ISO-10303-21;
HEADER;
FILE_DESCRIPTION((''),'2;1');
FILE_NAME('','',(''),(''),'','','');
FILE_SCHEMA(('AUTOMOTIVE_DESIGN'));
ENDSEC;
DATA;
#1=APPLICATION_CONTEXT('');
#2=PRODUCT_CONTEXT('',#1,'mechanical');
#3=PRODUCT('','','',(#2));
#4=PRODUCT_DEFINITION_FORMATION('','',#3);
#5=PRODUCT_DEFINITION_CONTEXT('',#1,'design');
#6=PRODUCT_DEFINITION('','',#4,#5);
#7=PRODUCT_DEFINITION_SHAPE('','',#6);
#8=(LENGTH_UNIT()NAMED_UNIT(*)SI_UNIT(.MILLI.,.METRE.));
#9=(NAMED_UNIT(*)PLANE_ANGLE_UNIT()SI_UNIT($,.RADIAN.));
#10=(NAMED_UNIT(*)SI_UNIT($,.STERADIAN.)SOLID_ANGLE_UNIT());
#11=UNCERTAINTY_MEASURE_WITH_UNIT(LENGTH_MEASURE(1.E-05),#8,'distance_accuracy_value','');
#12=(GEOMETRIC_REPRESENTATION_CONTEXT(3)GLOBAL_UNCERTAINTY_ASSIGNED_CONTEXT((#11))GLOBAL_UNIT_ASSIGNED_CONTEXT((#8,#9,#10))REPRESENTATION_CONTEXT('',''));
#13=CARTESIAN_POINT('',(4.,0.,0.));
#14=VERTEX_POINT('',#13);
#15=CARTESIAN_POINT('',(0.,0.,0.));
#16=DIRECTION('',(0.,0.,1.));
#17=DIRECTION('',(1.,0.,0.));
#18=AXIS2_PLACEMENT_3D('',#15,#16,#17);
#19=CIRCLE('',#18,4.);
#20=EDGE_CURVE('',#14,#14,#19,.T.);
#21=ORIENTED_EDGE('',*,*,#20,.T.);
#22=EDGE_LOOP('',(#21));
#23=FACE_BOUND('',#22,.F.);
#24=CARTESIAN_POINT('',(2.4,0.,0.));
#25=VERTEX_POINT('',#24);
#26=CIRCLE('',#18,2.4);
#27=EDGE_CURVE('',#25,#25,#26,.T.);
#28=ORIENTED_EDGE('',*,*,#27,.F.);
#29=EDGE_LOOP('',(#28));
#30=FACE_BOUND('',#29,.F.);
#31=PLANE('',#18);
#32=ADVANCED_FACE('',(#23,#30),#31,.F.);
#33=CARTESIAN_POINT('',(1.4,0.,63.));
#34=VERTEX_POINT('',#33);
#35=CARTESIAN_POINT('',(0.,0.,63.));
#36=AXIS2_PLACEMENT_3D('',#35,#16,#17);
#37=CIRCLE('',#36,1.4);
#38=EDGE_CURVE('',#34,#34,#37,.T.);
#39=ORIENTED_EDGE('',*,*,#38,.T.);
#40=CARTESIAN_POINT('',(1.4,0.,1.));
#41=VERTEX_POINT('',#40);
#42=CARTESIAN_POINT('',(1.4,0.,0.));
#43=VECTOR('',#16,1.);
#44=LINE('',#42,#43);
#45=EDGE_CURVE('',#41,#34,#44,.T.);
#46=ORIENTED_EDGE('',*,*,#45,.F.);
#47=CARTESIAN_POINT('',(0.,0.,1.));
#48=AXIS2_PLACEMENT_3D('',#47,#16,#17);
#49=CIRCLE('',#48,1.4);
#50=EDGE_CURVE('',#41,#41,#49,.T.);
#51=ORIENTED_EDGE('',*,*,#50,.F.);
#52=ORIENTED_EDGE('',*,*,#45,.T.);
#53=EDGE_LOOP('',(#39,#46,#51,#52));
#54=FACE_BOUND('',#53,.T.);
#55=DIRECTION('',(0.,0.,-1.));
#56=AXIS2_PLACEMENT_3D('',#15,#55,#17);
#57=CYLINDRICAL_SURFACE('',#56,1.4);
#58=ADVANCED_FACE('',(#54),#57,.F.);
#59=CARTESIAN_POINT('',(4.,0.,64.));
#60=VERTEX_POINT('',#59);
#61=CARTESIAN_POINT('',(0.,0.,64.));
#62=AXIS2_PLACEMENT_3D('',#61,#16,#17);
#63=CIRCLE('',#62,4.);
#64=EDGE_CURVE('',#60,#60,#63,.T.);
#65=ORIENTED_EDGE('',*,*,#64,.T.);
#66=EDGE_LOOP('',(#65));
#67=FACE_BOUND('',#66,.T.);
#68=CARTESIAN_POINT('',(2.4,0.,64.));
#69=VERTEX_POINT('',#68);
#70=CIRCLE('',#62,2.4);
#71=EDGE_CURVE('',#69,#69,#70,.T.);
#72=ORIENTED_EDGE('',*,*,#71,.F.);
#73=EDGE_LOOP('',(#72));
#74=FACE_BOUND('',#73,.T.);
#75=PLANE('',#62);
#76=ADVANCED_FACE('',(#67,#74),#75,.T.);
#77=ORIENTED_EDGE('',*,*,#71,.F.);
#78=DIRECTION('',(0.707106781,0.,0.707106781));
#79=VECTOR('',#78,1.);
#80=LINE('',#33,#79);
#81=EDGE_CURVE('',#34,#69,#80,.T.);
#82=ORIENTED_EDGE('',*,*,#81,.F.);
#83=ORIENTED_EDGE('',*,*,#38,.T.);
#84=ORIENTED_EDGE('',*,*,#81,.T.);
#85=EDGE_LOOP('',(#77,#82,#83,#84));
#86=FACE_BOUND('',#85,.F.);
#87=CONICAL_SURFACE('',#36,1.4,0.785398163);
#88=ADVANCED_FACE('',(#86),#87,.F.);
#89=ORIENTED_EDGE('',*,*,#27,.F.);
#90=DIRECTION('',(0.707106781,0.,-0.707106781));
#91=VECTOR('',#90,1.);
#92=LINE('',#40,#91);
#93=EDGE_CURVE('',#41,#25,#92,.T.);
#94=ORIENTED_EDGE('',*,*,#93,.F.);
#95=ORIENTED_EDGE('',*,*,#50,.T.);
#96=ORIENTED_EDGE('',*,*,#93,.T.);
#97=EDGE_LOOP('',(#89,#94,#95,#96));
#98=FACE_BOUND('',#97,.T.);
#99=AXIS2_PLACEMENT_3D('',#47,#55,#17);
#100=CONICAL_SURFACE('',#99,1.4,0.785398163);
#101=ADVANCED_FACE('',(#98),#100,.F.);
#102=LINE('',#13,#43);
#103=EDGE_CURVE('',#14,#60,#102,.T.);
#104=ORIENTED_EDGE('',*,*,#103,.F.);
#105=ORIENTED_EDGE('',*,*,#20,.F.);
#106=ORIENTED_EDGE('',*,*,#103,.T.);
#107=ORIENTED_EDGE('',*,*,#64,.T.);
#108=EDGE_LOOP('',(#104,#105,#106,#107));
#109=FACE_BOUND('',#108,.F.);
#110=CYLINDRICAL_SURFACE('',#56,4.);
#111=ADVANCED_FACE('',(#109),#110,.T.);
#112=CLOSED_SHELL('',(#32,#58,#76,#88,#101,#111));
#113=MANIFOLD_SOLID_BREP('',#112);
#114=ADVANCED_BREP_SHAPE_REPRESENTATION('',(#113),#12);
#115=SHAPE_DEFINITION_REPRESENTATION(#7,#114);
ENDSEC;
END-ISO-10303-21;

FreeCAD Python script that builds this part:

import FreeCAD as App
import Part
import Sketcher

V = App.Vector
Q = App.Units.Quantity


def edges_at(feature, points):
    """Names of the edges that pass closest to the given points."""
    edges = feature.Shape.Edges
    near = lambda p: min(range(len(edges)), key=lambda i: edges[i].distToShape(Part.Vertex(*p))[0])
    return sorted({f"Edge{near(p) + 1}" for p in points})

doc = App.newDocument("Part")
body = doc.addObject("PartDesign::Body", "Body")

# Sketch on XY plane
sketch1 = body.newObject("Sketcher::SketchObject", "Sketch")
sketch1.AttachmentSupport = (doc.getObject("XY_Plane"), [""])
sketch1.MapMode = "FlatFace"
sketch1.addGeometry([
    Part.Circle(V(0, 0, 0), V(0, 0, 1), 4),
    Part.Circle(V(0, 0, 0), V(0, 0, 1), 1.4),
], False)
sketch1.addConstraint([
    Sketcher.Constraint("Coincident", 0, 3, -1, 1),
    Sketcher.Constraint("Coincident", 1, 3, -1, 1),
    Sketcher.Constraint("Diameter", 0, Q("8 mm")),
    Sketcher.Constraint("Diameter", 1, Q("2.8 mm")),
])
pad1 = body.newObject("PartDesign::Pad", "Pad")
pad1.Profile = sketch1
pad1.Length = 64
doc.recompute()

chamfer = body.newObject("PartDesign::Chamfer", "Chamfer")
chamfer.Base = (pad1, edges_at(pad1, [(-1.4, 0, 64), (-1.4, 0, 0)]))
chamfer.Size = 1

doc.recompute()
